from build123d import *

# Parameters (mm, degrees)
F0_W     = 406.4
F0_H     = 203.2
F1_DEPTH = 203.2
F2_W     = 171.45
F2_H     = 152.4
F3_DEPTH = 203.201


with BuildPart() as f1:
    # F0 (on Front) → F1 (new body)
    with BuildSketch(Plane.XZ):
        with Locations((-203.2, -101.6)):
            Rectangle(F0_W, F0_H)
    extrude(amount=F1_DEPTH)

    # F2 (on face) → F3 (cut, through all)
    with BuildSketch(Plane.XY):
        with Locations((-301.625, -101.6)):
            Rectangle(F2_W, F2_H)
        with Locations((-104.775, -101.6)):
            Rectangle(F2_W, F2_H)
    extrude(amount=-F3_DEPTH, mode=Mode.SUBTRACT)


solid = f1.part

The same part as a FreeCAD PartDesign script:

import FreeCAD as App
import Part
import Sketcher
from FreeCAD import Vector
Q = App.Units.Quantity


def add_polygon(sketch, points):
    """Adds a closed chain of lines whose ends are joined by coincident constraints."""
    first, n = sketch.GeometryCount, len(points)
    for a, b in zip(points, points[1:] + points[:1]):
        sketch.addGeometry(Part.LineSegment(App.Vector(*a, 0), App.Vector(*b, 0)), False)
    for i in range(n):
        sketch.addConstraint(Sketcher.Constraint("Coincident", first + i, 2, first + (i + 1) % n, 1))

doc = App.newDocument("Part")
params = doc.addObject("Spreadsheet::Sheet", "Params")
for row, (alias, value) in enumerate([
    ("sketch1_width", "16 in"),
    ("sketch1_height", "8 in"),
    ("pad1_length", "8 in"),
    ("sketch2_height", "6 in"),
    ("sketch2_width", "6.75 in"),
], start=1):
    params.set(f"A{row}", alias)
    params.set(f"B{row}", "=" + value)
    params.setAlias(f"B{row}", alias)

body = doc.addObject("PartDesign::Body", "Body")

# Sketch on XZ plane
sketch1 = doc.addObject("Sketcher::SketchObject", "Sketch")
body.addObject(sketch1)
sketch1.AttachmentSupport = (doc.XZ_Plane, [""])
sketch1.MapMode = "FlatFace"
add_polygon(sketch1, [(-406, 0), (-406, -203), (0, -203), (0, 0)])  # lines 0-3
sketch1.addConstraint(Sketcher.Constraint("Vertical", 0))
sketch1.addConstraint(Sketcher.Constraint("Horizontal", 1))
sketch1.addConstraint(Sketcher.Constraint("Vertical", 2))
sketch1.addConstraint(Sketcher.Constraint("Horizontal", 3))
sketch1.addConstraint(Sketcher.Constraint("Coincident", 2, 2, -1, 1))
sketch1.addConstraint(Sketcher.Constraint("DistanceX", 1, 1, 1, 2, Q("16 in")))
sketch1.addConstraint(Sketcher.Constraint("DistanceY", 0, 2, 0, 1, Q("8 in")))
sketch1.setExpression("Constraints[9]", "Params.sketch1_width")
sketch1.setExpression("Constraints[10]", "Params.sketch1_height")
pad1 = doc.addObject("PartDesign::Pad", "Pad")
body.addObject(pad1)
pad1.Profile = sketch1
pad1.setExpression("Length", "Params.pad1_length")

# Sketch on XY plane
sketch2 = doc.addObject("Sketcher::SketchObject", "Sketch001")
body.addObject(sketch2)
sketch2.AttachmentSupport = (doc.XY_Plane, [""])
sketch2.MapMode = "FlatFace"
add_polygon(sketch2, [(-387, -25), (-387, -178), (-216, -178), (-216, -25)])  # lines 0-3
add_polygon(sketch2, [(-190, -25), (-190, -178), (-19, -178), (-19, -25)])  # lines 4-7
sketch2.addConstraint(Sketcher.Constraint("Vertical", 0))
sketch2.addConstraint(Sketcher.Constraint("Horizontal", 1))
sketch2.addConstraint(Sketcher.Constraint("Vertical", 2))
sketch2.addConstraint(Sketcher.Constraint("Horizontal", 3))
sketch2.addConstraint(Sketcher.Constraint("Vertical", 4))
sketch2.addConstraint(Sketcher.Constraint("Horizontal", 5))
sketch2.addConstraint(Sketcher.Constraint("Vertical", 6))
sketch2.addConstraint(Sketcher.Constraint("Horizontal", 7))
sketch2.addConstraint(Sketcher.Constraint("Horizontal", 1, 2, 4, 2))
sketch2.addConstraint(Sketcher.Constraint("Horizontal", 3, 2, 6, 2))
sketch2.addConstraint(Sketcher.Constraint("Equal", 3, 5))
sketch2.addConstraint(Sketcher.Constraint("DistanceY", 0, 2, 0, 1, Q("6 in")))
sketch2.addConstraint(Sketcher.Constraint("DistanceY", 0, 2, -1, 1, Q("7 in")))
sketch2.addConstraint(Sketcher.Constraint("DistanceX", 1, 2, 4, 2, Q("1 in")))
sketch2.addConstraint(Sketcher.Constraint("DistanceX", 1, 1, 1, 2, Q("6.75 in")))
sketch2.addConstraint(Sketcher.Constraint("DistanceX", 1, 2, -1, 1, Q("8.5 in")))
sketch2.setExpression("Constraints[19]", "Params.sketch2_height")
sketch2.setExpression("Constraints[22]", "Params.sketch2_width")
pocket1 = doc.addObject("PartDesign::Pocket", "Pocket")
body.addObject(pocket1)
pocket1.Profile = sketch2
pocket1.Type = "ThroughAll"

doc.recompute()
